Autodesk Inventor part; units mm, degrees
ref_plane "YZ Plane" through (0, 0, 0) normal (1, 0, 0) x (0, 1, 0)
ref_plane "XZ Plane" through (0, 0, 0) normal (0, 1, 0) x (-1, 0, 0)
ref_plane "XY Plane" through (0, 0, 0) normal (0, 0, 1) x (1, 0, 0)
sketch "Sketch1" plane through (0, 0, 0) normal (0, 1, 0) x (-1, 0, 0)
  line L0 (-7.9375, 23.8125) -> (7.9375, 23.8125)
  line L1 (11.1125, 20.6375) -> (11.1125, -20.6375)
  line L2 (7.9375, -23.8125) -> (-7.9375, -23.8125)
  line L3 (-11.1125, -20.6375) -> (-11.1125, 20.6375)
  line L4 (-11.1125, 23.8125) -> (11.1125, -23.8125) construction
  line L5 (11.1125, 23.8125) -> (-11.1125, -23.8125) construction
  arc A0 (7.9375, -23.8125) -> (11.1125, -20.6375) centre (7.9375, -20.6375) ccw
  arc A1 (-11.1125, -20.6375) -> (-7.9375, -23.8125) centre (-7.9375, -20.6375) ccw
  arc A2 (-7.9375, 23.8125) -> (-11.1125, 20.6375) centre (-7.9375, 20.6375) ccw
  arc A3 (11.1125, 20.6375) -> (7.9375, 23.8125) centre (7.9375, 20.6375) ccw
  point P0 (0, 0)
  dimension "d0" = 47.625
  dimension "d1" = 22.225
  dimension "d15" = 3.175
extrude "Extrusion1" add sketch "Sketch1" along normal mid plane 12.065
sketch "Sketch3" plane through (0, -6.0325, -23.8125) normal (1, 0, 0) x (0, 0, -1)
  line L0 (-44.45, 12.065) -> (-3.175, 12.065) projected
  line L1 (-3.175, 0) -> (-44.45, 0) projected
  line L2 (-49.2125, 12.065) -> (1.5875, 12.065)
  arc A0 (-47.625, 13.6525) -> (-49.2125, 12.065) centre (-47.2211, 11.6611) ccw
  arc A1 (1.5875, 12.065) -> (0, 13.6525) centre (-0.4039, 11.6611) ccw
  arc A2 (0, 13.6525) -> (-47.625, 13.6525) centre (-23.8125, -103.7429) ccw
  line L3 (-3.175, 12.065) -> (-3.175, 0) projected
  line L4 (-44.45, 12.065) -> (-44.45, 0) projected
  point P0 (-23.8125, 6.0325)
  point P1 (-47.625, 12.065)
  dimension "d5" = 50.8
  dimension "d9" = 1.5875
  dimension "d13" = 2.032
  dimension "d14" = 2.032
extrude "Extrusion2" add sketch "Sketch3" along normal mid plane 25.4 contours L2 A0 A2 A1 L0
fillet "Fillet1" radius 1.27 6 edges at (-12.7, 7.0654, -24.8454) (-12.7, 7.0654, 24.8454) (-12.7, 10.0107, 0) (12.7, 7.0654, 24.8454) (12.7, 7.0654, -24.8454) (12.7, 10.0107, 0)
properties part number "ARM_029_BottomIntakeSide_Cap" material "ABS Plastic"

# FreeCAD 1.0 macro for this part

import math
import FreeCAD as App
import Part
import Sketcher

V = App.Vector
Q = App.Units.Quantity


def edges_at(feature, points):
    """Names of the edges that pass closest to the given points."""
    edges = feature.Shape.Edges
    near = lambda p: min(range(len(edges)), key=lambda i: edges[i].distToShape(Part.Vertex(*p))[0])
    return sorted({f"Edge{near(p) + 1}" for p in points})

doc = App.newDocument("Part")
params = doc.addObject("Spreadsheet::Sheet", "Params")
for row, (alias, value) in enumerate([
    ("sketch1_radius", "0.125 in"),
    ("sketch1_height", "1.625 in"),
    ("pad1_length", "0.475 in"),
    ("sketch2_height", "2 in"),
    ("sketch2_radius", "0.08 in"),
    ("sketch2_radius2", "4.716 in"),
    ("pad2_length", "1 in"),
    ("fillet_radius", "0.05 in"),
], start=1):
    params.set(f"A{row}", alias)
    params.set(f"B{row}", "=" + value)
    params.setAlias(f"B{row}", alias)

body = doc.addObject("PartDesign::Body", "Body")

# Sketch on XZ plane
sketch1 = body.newObject("Sketcher::SketchObject", "Sketch")
sketch1.AttachmentSupport = (doc.getObject("XZ_Plane"), [""])
sketch1.MapMode = "FlatFace"
sketch1.addGeometry([
    Part.LineSegment(V(-7.9, 23.8, 0), V(7.9, 23.8, 0)),  # 0
    Part.ArcOfCircle(Part.Circle(V(7.9, 20.6, 0), V(0, 0, 1), 3.2), math.radians(0), math.radians(90)),  # 1
    Part.LineSegment(V(11.1, 20.6, 0), V(11.1, -20.6, 0)),  # 2
    Part.ArcOfCircle(Part.Circle(V(7.9, -20.6, 0), V(0, 0, 1), 3.2), math.radians(-90), math.radians(0)),  # 3
    Part.LineSegment(V(7.9, -23.8, 0), V(-7.9, -23.8, 0)),  # 4
    Part.ArcOfCircle(Part.Circle(V(-7.9, -20.6, 0), V(0, 0, 1), 3.2), math.radians(180), math.radians(270)),  # 5
    Part.LineSegment(V(-11.1, -20.6, 0), V(-11.1, 20.6, 0)),  # 6
    Part.ArcOfCircle(Part.Circle(V(-7.9, 20.6, 0), V(0, 0, 1), 3.2), math.radians(90), math.radians(180)),  # 7
], False)
sketch1.addConstraint([
    Sketcher.Constraint("Tangent", 0, 2, 1, 2),
    Sketcher.Constraint("Tangent", 1, 1, 2, 1),
    Sketcher.Constraint("Tangent", 2, 2, 3, 2),
    Sketcher.Constraint("Tangent", 3, 1, 4, 1),
    Sketcher.Constraint("Tangent", 4, 2, 5, 2),
    Sketcher.Constraint("Tangent", 5, 1, 6, 1),
    Sketcher.Constraint("Tangent", 6, 2, 7, 2),
    Sketcher.Constraint("Tangent", 7, 1, 0, 1),
    Sketcher.Constraint("Horizontal", 0),
    Sketcher.Constraint("Vertical", 2),
    Sketcher.Constraint("Horizontal", 4),
    Sketcher.Constraint("Vertical", 6),
    Sketcher.Constraint("Equal", 1, 3),
    Sketcher.Constraint("Equal", 3, 5),
    Sketcher.Constraint("Equal", 5, 7),
    Sketcher.Constraint("Symmetric", 1, 3, 5, 3, -1, 1),
    Sketcher.Constraint("Radius", 1, Q("0.125 in")),
    Sketcher.Constraint("DistanceX", 5, 1, 2, 2, Q("0.875 in")),
    Sketcher.Constraint("DistanceY", 2, 2, 2, 1, Q("1.625 in")),
])
sketch1.setExpression("Constraints[16]", "Params.sketch1_radius")
sketch1.setExpression("Constraints[18]", "Params.sketch1_height")
pad1 = body.newObject("PartDesign::Pad", "Pad")
pad1.Profile = sketch1
pad1.setExpression("Length", "Params.pad1_length")
pad1.Midplane = True

# Sketch on YZ plane
sketch2 = body.newObject("Sketcher::SketchObject", "Sketch001")
sketch2.AttachmentSupport = (doc.getObject("YZ_Plane"), [""])
sketch2.MapMode = "FlatFace"
sketch2.addGeometry([
    Part.LineSegment(V(6, 25.4, 0), V(6, -25.4, 0)),
    Part.ArcOfCircle(Part.Circle(V(5.6, -23.4, 0), V(0, 0, 1), 2), math.radians(-79), math.radians(-11)),
    Part.ArcOfCircle(Part.Circle(V(-109.8, 0, 0), V(0, 0, 1), 119.8), math.radians(-11), math.radians(11)),
    Part.ArcOfCircle(Part.Circle(V(5.6, 23.4, 0), V(0, 0, 1), 2), math.radians(11), math.radians(79)),
], False)
sketch2.addConstraint([
    Sketcher.Constraint("Coincident", 0, 2, 1, 1),
    Sketcher.Constraint("Tangent", 1, 2, 2, 1),
    Sketcher.Constraint("Tangent", 2, 2, 3, 1),
    Sketcher.Constraint("Coincident", 3, 2, 0, 1),
    Sketcher.Constraint("Vertical", 0),
    Sketcher.Constraint("Equal", 1, 3),
    Sketcher.Constraint("Symmetric", 1, 3, 3, 3, -1),
    Sketcher.Constraint("DistanceY", 0, 2, 0, 1, Q("2 in")),
    Sketcher.Constraint("Radius", 1, Q("0.08 in")),
    Sketcher.Constraint("Radius", 2, Q("4.716 in")),
    Sketcher.Constraint("DistanceX", 0, 2, 1, 2, Q("0.0625 in")),
    Sketcher.Constraint("DistanceX", -1, 1, 1, 2, Q("0.3 in")),
])
sketch2.setExpression("Constraints[7]", "Params.sketch2_height")
sketch2.setExpression("Constraints[8]", "Params.sketch2_radius")
sketch2.setExpression("Constraints[9]", "Params.sketch2_radius2")
pad2 = body.newObject("PartDesign::Pad", "Pad001")
pad2.Profile = sketch2
pad2.setExpression("Length", "Params.pad2_length")
pad2.Midplane = True
doc.recompute()

fillet = body.newObject("PartDesign::Fillet", "Fillet")
fillet.Base = (pad2, edges_at(pad2, [
    (-12.7, 7.065, -24.845),
    (-12.7, 7.065, 24.845),
    (-12.7, 10.011, 0),
    (12.7, 7.065, 24.845),
    (12.7, 7.065, -24.845),
    (12.7, 10.011, 0),
]))
fillet.setExpression("Radius", "Params.fillet_radius")

doc.recompute()
